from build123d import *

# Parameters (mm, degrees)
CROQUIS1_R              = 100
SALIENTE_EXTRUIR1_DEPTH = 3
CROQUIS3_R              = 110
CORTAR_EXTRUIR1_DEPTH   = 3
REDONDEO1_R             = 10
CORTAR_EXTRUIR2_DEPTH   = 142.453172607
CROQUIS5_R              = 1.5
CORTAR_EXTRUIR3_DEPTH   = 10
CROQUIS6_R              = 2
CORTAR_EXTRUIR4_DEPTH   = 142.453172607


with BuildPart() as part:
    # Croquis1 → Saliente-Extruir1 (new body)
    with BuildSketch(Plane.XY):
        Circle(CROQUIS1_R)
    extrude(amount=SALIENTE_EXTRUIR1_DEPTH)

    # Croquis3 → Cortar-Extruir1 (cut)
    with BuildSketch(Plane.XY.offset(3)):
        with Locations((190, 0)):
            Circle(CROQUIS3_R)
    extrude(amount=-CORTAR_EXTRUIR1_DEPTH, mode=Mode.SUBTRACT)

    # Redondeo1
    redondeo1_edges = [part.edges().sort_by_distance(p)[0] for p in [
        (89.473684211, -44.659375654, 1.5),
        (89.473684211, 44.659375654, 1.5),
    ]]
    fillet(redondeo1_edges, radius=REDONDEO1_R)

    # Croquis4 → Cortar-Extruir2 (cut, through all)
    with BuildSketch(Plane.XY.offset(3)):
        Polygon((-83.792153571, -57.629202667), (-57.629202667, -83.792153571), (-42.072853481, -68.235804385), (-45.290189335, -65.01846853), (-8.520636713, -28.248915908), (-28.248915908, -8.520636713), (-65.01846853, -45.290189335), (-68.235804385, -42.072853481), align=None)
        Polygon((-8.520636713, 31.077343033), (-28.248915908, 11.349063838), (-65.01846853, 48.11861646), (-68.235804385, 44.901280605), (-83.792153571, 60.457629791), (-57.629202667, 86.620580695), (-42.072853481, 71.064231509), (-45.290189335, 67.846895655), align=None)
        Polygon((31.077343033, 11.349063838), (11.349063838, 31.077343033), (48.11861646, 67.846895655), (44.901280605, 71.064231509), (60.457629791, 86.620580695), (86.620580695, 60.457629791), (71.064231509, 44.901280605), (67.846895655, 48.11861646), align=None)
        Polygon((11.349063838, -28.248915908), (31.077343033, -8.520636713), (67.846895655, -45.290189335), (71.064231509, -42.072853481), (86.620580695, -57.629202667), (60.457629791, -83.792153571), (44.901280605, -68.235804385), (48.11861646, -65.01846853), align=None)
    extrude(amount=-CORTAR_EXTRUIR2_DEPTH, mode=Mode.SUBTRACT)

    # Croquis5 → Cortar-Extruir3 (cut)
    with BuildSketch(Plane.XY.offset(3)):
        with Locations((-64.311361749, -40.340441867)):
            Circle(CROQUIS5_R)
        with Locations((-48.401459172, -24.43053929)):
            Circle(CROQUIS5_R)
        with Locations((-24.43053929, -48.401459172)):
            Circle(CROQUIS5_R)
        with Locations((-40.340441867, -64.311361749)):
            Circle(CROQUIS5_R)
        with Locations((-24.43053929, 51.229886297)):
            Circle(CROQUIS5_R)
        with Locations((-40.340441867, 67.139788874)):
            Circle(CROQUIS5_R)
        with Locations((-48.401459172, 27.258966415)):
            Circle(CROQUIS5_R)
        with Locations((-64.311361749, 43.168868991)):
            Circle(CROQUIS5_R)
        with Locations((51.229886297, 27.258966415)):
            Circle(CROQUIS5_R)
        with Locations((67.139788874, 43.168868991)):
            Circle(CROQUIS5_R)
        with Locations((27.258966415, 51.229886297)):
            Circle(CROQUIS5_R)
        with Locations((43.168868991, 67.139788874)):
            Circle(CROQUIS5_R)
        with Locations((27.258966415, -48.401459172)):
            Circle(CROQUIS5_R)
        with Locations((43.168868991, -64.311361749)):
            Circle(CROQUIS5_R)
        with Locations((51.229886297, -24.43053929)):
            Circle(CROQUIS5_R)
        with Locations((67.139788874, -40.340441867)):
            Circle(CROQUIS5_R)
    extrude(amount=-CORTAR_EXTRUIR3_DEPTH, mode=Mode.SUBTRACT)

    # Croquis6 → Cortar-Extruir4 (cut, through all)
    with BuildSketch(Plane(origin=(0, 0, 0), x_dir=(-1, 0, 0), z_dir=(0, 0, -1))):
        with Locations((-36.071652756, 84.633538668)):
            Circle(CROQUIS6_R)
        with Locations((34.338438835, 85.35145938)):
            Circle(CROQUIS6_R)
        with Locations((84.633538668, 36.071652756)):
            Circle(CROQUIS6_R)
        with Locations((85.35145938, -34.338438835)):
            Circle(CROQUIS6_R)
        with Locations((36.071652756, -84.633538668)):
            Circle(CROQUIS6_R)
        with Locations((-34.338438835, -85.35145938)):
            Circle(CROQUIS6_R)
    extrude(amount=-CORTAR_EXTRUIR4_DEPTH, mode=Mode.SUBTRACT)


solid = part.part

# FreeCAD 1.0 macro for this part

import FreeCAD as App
import Part
import Sketcher


def edges_at(feature, points):
    """Names of the edges that pass closest to the given points."""
    edges = feature.Shape.Edges
    near = lambda p: min(range(len(edges)), key=lambda i: edges[i].distToShape(Part.Vertex(*p))[0])
    return sorted({f"Edge{near(p) + 1}" for p in points})

doc = App.newDocument("Part")
body = doc.addObject("PartDesign::Body", "Body")

# Sketch on XY plane
sketch1 = doc.addObject("Sketcher::SketchObject", "Sketch")
body.addObject(sketch1)
sketch1.AttachmentSupport = (doc.XY_Plane, [""])
sketch1.MapMode = "FlatFace"
sketch1.addGeometry(Part.Circle(App.Vector(0, 0, 0), App.Vector(0, 0, 1), 100), False)
sketch1.addConstraint(Sketcher.Constraint("Coincident", 0, 3, -1, 1))
sketch1.addConstraint(Sketcher.Constraint("Diameter", 0, 200.0))
pad1 = doc.addObject("PartDesign::Pad", "Pad")
body.addObject(pad1)
pad1.Profile = sketch1
pad1.Length = 3

# Sketch on XY plane
sketch2 = doc.addObject("Sketcher::SketchObject", "Sketch001")
body.addObject(sketch2)
sketch2.AttachmentSupport = (doc.XY_Plane, [""])
sketch2.MapMode = "FlatFace"
sketch2.AttachmentOffset = App.Placement(App.Vector(0, 0, 3), App.Rotation())
sketch2.addGeometry(Part.Circle(App.Vector(190, 0, 0), App.Vector(0, 0, 1), 110), False)
sketch2.addConstraint(Sketcher.Constraint("PointOnObject", 0, 3, -1))
sketch2.addConstraint(Sketcher.Constraint("Diameter", 0, 220.0))
sketch2.addConstraint(Sketcher.Constraint("DistanceX", -1, 1, 0, 3, 190.0))
pocket1 = doc.addObject("PartDesign::Pocket", "Pocket")
body.addObject(pocket1)
pocket1.Profile = sketch2
pocket1.Length = 3
doc.recompute()

fillet = doc.addObject("PartDesign::Fillet", "Fillet")
body.addObject(fillet)
fillet.Base = (pocket1, edges_at(pocket1, [(89.474, -44.659, 1.5), (89.474, 44.659, 1.5)]))
fillet.Radius = 10

# Sketch on XY plane
sketch3 = doc.addObject("Sketcher::SketchObject", "Sketch002")
body.addObject(sketch3)
sketch3.AttachmentSupport = (doc.XY_Plane, [""])
sketch3.MapMode = "FlatFace"
sketch3.AttachmentOffset = App.Placement(App.Vector(0, 0, 3), App.Rotation())
sketch3.addGeometry(Part.LineSegment(App.Vector(-83.8, -57.6, 0), App.Vector(-57.6, -83.8, 0)), False)
sketch3.addGeometry(Part.LineSegment(App.Vector(-57.6, -83.8, 0), App.Vector(-42.1, -68.2, 0)), False)
sketch3.addGeometry(Part.LineSegment(App.Vector(-42.1, -68.2, 0), App.Vector(-45.3, -65, 0)), False)
sketch3.addGeometry(Part.LineSegment(App.Vector(-45.3, -65, 0), App.Vector(-8.5, -28.2, 0)), False)
sketch3.addGeometry(Part.LineSegment(App.Vector(-8.5, -28.2, 0), App.Vector(-28.2, -8.5, 0)), False)
sketch3.addGeometry(Part.LineSegment(App.Vector(-28.2, -8.5, 0), App.Vector(-65, -45.3, 0)), False)
sketch3.addGeometry(Part.LineSegment(App.Vector(-65, -45.3, 0), App.Vector(-68.2, -42.1, 0)), False)
sketch3.addGeometry(Part.LineSegment(App.Vector(-68.2, -42.1, 0), App.Vector(-83.8, -57.6, 0)), False)
sketch3.addGeometry(Part.LineSegment(App.Vector(-28.2, 11.3, 0), App.Vector(-8.5, 31.1, 0)), False)
sketch3.addGeometry(Part.LineSegment(App.Vector(-8.5, 31.1, 0), App.Vector(-45.3, 67.8, 0)), False)
sketch3.addGeometry(Part.LineSegment(App.Vector(-45.3, 67.8, 0), App.Vector(-42.1, 71.1, 0)), False)
sketch3.addGeometry(Part.LineSegment(App.Vector(-42.1, 71.1, 0), App.Vector(-57.6, 86.6, 0)), False)
sketch3.addGeometry(Part.LineSegment(App.Vector(-57.6, 86.6, 0), App.Vector(-83.8, 60.5, 0)), False)
sketch3.addGeometry(Part.LineSegment(App.Vector(-83.8, 60.5, 0), App.Vector(-68.2, 44.9, 0)), False)
sketch3.addGeometry(Part.LineSegment(App.Vector(-68.2, 44.9, 0), App.Vector(-65, 48.1, 0)), False)
sketch3.addGeometry(Part.LineSegment(App.Vector(-65, 48.1, 0), App.Vector(-28.2, 11.3, 0)), False)
sketch3.addGeometry(Part.LineSegment(App.Vector(11.3, 31.1, 0), App.Vector(31.1, 11.3, 0)), False)
sketch3.addGeometry(Part.LineSegment(App.Vector(31.1, 11.3, 0), App.Vector(67.8, 48.1, 0)), False)
sketch3.addGeometry(Part.LineSegment(App.Vector(67.8, 48.1, 0), App.Vector(71.1, 44.9, 0)), False)
sketch3.addGeometry(Part.LineSegment(App.Vector(71.1, 44.9, 0), App.Vector(86.6, 60.5, 0)), False)
sketch3.addGeometry(Part.LineSegment(App.Vector(86.6, 60.5, 0), App.Vector(60.5, 86.6, 0)), False)
sketch3.addGeometry(Part.LineSegment(App.Vector(60.5, 86.6, 0), App.Vector(44.9, 71.1, 0)), False)
sketch3.addGeometry(Part.LineSegment(App.Vector(44.9, 71.1, 0), App.Vector(48.1, 67.8, 0)), False)
sketch3.addGeometry(Part.LineSegment(App.Vector(48.1, 67.8, 0), App.Vector(11.3, 31.1, 0)), False)
sketch3.addGeometry(Part.LineSegment(App.Vector(31.1, -8.5, 0), App.Vector(11.3, -28.2, 0)), False)
sketch3.addGeometry(Part.LineSegment(App.Vector(11.3, -28.2, 0), App.Vector(48.1, -65, 0)), False)
sketch3.addGeometry(Part.LineSegment(App.Vector(48.1, -65, 0), App.Vector(44.9, -68.2, 0)), False)
sketch3.addGeometry(Part.LineSegment(App.Vector(44.9, -68.2, 0), App.Vector(60.5, -83.8, 0)), False)
sketch3.addGeometry(Part.LineSegment(App.Vector(60.5, -83.8, 0), App.Vector(86.6, -57.6, 0)), False)
sketch3.addGeometry(Part.LineSegment(App.Vector(86.6, -57.6, 0), App.Vector(71.1, -42.1, 0)), False)
sketch3.addGeometry(Part.LineSegment(App.Vector(71.1, -42.1, 0), App.Vector(67.8, -45.3, 0)), False)
sketch3.addGeometry(Part.LineSegment(App.Vector(67.8, -45.3, 0), App.Vector(31.1, -8.5, 0)), False)
sketch3.addConstraint(Sketcher.Constraint("Coincident", 0, 2, 1, 1))
sketch3.addConstraint(Sketcher.Constraint("Coincident", 1, 2, 2, 1))
sketch3.addConstraint(Sketcher.Constraint("Coincident", 2, 2, 3, 1))
sketch3.addConstraint(Sketcher.Constraint("Coincident", 3, 2, 4, 1))
sketch3.addConstraint(Sketcher.Constraint("Coincident", 4, 2, 5, 1))
sketch3.addConstraint(Sketcher.Constraint("Coincident", 5, 2, 6, 1))
sketch3.addConstraint(Sketcher.Constraint("Coincident", 6, 2, 7, 1))
sketch3.addConstraint(Sketcher.Constraint("Coincident", 7, 2, 0, 1))
sketch3.addConstraint(Sketcher.Constraint("Coincident", 8, 2, 9, 1))
sketch3.addConstraint(Sketcher.Constraint("Coincident", 9, 2, 10, 1))
sketch3.addConstraint(Sketcher.Constraint("Coincident", 10, 2, 11, 1))
sketch3.addConstraint(Sketcher.Constraint("Coincident", 11, 2, 12, 1))
sketch3.addConstraint(Sketcher.Constraint("Coincident", 12, 2, 13, 1))
sketch3.addConstraint(Sketcher.Constraint("Coincident", 13, 2, 14, 1))
sketch3.addConstraint(Sketcher.Constraint("Coincident", 14, 2, 15, 1))
sketch3.addConstraint(Sketcher.Constraint("Coincident", 15, 2, 8, 1))
sketch3.addConstraint(Sketcher.Constraint("Coincident", 16, 2, 17, 1))
sketch3.addConstraint(Sketcher.Constraint("Coincident", 17, 2, 18, 1))
sketch3.addConstraint(Sketcher.Constraint("Coincident", 18, 2, 19, 1))
sketch3.addConstraint(Sketcher.Constraint("Coincident", 19, 2, 20, 1))
sketch3.addConstraint(Sketcher.Constraint("Coincident", 20, 2, 21, 1))
sketch3.addConstraint(Sketcher.Constraint("Coincident", 21, 2, 22, 1))
sketch3.addConstraint(Sketcher.Constraint("Coincident", 22, 2, 23, 1))
sketch3.addConstraint(Sketcher.Constraint("Coincident", 23, 2, 16, 1))
sketch3.addConstraint(Sketcher.Constraint("Coincident", 24, 2, 25, 1))
sketch3.addConstraint(Sketcher.Constraint("Coincident", 25, 2, 26, 1))
sketch3.addConstraint(Sketcher.Constraint("Coincident", 26, 2, 27, 1))
sketch3.addConstraint(Sketcher.Constraint("Coincident", 27, 2, 28, 1))
sketch3.addConstraint(Sketcher.Constraint("Coincident", 28, 2, 29, 1))
sketch3.addConstraint(Sketcher.Constraint("Coincident", 29, 2, 30, 1))
sketch3.addConstraint(Sketcher.Constraint("Coincident", 30, 2, 31, 1))
sketch3.addConstraint(Sketcher.Constraint("Coincident", 31, 2, 24, 1))
sketch3.addConstraint(Sketcher.Constraint("Perpendicular", 0, 1))
sketch3.addConstraint(Sketcher.Constraint("Perpendicular", 1, 2))
sketch3.addConstraint(Sketcher.Constraint("Perpendicular", 2, 3))
sketch3.addConstraint(Sketcher.Constraint("Perpendicular", 3, 4))
sketch3.addConstraint(Sketcher.Constraint("Perpendicular", 4, 5))
sketch3.addConstraint(Sketcher.Constraint("Perpendicular", 5, 6))
sketch3.addConstraint(Sketcher.Constraint("Perpendicular", 6, 7))
sketch3.addConstraint(Sketcher.Constraint("Parallel", 7, 8))
sketch3.addConstraint(Sketcher.Constraint("Perpendicular", 8, 9))
sketch3.addConstraint(Sketcher.Constraint("Perpendicular", 9, 10))
sketch3.addConstraint(Sketcher.Constraint("Perpendicular", 10, 11))
sketch3.addConstraint(Sketcher.Constraint("Perpendicular", 11, 12))
sketch3.addConstraint(Sketcher.Constraint("Perpendicular", 12, 13))
sketch3.addConstraint(Sketcher.Constraint("Perpendicular", 13, 14))
sketch3.addConstraint(Sketcher.Constraint("Perpendicular", 14, 15))
sketch3.addConstraint(Sketcher.Constraint("Parallel", 15, 16))
sketch3.addConstraint(Sketcher.Constraint("Perpendicular", 16, 17))
sketch3.addConstraint(Sketcher.Constraint("Perpendicular", 17, 18))
sketch3.addConstraint(Sketcher.Constraint("Perpendicular", 18, 19))
sketch3.addConstraint(Sketcher.Constraint("Perpendicular", 19, 20))
sketch3.addConstraint(Sketcher.Constraint("Perpendicular", 20, 21))
sketch3.addConstraint(Sketcher.Constraint("Perpendicular", 21, 22))
sketch3.addConstraint(Sketcher.Constraint("Perpendicular", 22, 23))
sketch3.addConstraint(Sketcher.Constraint("Parallel", 23, 24))
sketch3.addConstraint(Sketcher.Constraint("Perpendicular", 24, 25))
sketch3.addConstraint(Sketcher.Constraint("Perpendicular", 25, 26))
sketch3.addConstraint(Sketcher.Constraint("Perpendicular", 26, 27))
sketch3.addConstraint(Sketcher.Constraint("Perpendicular", 27, 28))
sketch3.addConstraint(Sketcher.Constraint("Perpendicular", 28, 29))
sketch3.addConstraint(Sketcher.Constraint("Perpendicular", 29, 30))
sketch3.addConstraint(Sketcher.Constraint("Perpendicular", 30, 31))
sketch3.addConstraint(Sketcher.Constraint("Horizontal", 15, 2, 16, 2))
sketch3.addConstraint(Sketcher.Constraint("Horizontal", 14, 2, 17, 2))
sketch3.addConstraint(Sketcher.Constraint("Horizontal", 13, 2, 18, 2))
sketch3.addConstraint(Sketcher.Constraint("Horizontal", 12, 2, 19, 2))
sketch3.addConstraint(Sketcher.Constraint("Horizontal", 11, 2, 20, 2))
sketch3.addConstraint(Sketcher.Constraint("Horizontal", 10, 2, 21, 2))
sketch3.addConstraint(Sketcher.Constraint("Horizontal", 9, 2, 22, 2))
sketch3.addConstraint(Sketcher.Constraint("Horizontal", 3, 2, 24, 2))
sketch3.addConstraint(Sketcher.Constraint("Horizontal", 2, 2, 25, 2))
sketch3.addConstraint(Sketcher.Constraint("Horizontal", 1, 2, 26, 2))
sketch3.addConstraint(Sketcher.Constraint("Horizontal", 0, 2, 27, 2))
sketch3.addConstraint(Sketcher.Constraint("Horizontal", 7, 2, 28, 2))
sketch3.addConstraint(Sketcher.Constraint("Horizontal", 6, 2, 29, 2))
sketch3.addConstraint(Sketcher.Constraint("Horizontal", 5, 2, 30, 2))
sketch3.addConstraint(Sketcher.Constraint("Vertical", 3, 2, 8, 2))
sketch3.addConstraint(Sketcher.Constraint("Vertical", 2, 2, 9, 2))
sketch3.addConstraint(Sketcher.Constraint("Vertical", 1, 2, 10, 2))
sketch3.addConstraint(Sketcher.Constraint("Vertical", 0, 2, 11, 2))
sketch3.addConstraint(Sketcher.Constraint("Vertical", 7, 2, 12, 2))
sketch3.addConstraint(Sketcher.Constraint("Vertical", 6, 2, 13, 2))
sketch3.addConstraint(Sketcher.Constraint("Vertical", 5, 2, 14, 2))
sketch3.addConstraint(Sketcher.Constraint("Vertical", 23, 2, 24, 2))
sketch3.addConstraint(Sketcher.Constraint("Vertical", 22, 2, 25, 2))
sketch3.addConstraint(Sketcher.Constraint("Equal", 3, 5))
sketch3.addConstraint(Sketcher.Constraint("Equal", 2, 6))
sketch3.addConstraint(Sketcher.Constraint("Distance", 0, 37.0))
sketch3.addConstraint(Sketcher.Constraint("Distance", 1, 22.0))
sketch3.addConstraint(Sketcher.Constraint("Distance", 3, 52.0))
sketch3.addConstraint(Sketcher.Constraint("Distance", 4, 27.9))
sketch3.addConstraint(Sketcher.Constraint("DistanceY", 4, 2, 15, 2, 19.869701))
sketch3.addConstraint(Sketcher.Constraint("DistanceX", 8, 2, 23, 2, 19.869701))
sketch3.addConstraint(Sketcher.Constraint("DistanceX", 2, 2, -1, 1, 45.290189))
sketch3.addConstraint(Sketcher.Constraint("DistanceY", 2, 2, -1, 1, 65.018469))
pocket2 = doc.addObject("PartDesign::Pocket", "Pocket001")
body.addObject(pocket2)
pocket2.Profile = sketch3
pocket2.Type = "ThroughAll"

# Sketch on XY plane
sketch4 = doc.addObject("Sketcher::SketchObject", "Sketch003")
body.addObject(sketch4)
sketch4.AttachmentSupport = (doc.XY_Plane, [""])
sketch4.MapMode = "FlatFace"
sketch4.AttachmentOffset = App.Placement(App.Vector(0, 0, 3), App.Rotation())
sketch4.addGeometry(Part.Circle(App.Vector(-64.3, -40.3, 0), App.Vector(0, 0, 1), 1.5), False)
sketch4.addGeometry(Part.Circle(App.Vector(-48.4, -24.4, 0), App.Vector(0, 0, 1), 1.5), False)
sketch4.addGeometry(Part.Circle(App.Vector(-24.4, -48.4, 0), App.Vector(0, 0, 1), 1.5), False)
sketch4.addGeometry(Part.Circle(App.Vector(-40.3, -64.3, 0), App.Vector(0, 0, 1), 1.5), False)
sketch4.addGeometry(Part.Circle(App.Vector(-24.4, 51.2, 0), App.Vector(0, 0, 1), 1.5), False)
sketch4.addGeometry(Part.Circle(App.Vector(-40.3, 67.1, 0), App.Vector(0, 0, 1), 1.5), False)
sketch4.addGeometry(Part.Circle(App.Vector(-48.4, 27.3, 0), App.Vector(0, 0, 1), 1.5), False)
sketch4.addGeometry(Part.Circle(App.Vector(-64.3, 43.2, 0), App.Vector(0, 0, 1), 1.5), False)
sketch4.addGeometry(Part.Circle(App.Vector(51.2, 27.3, 0), App.Vector(0, 0, 1), 1.5), False)
sketch4.addGeometry(Part.Circle(App.Vector(67.1, 43.2, 0), App.Vector(0, 0, 1), 1.5), False)
sketch4.addGeometry(Part.Circle(App.Vector(27.3, 51.2, 0), App.Vector(0, 0, 1), 1.5), False)
sketch4.addGeometry(Part.Circle(App.Vector(43.2, 67.1, 0), App.Vector(0, 0, 1), 1.5), False)
sketch4.addGeometry(Part.Circle(App.Vector(27.3, -48.4, 0), App.Vector(0, 0, 1), 1.5), False)
sketch4.addGeometry(Part.Circle(App.Vector(43.2, -64.3, 0), App.Vector(0, 0, 1), 1.5), False)
sketch4.addGeometry(Part.Circle(App.Vector(51.2, -24.4, 0), App.Vector(0, 0, 1), 1.5), False)
sketch4.addGeometry(Part.Circle(App.Vector(67.1, -40.3, 0), App.Vector(0, 0, 1), 1.5), False)
sketch4.addConstraint(Sketcher.Constraint("Equal", 0, 1))
sketch4.addConstraint(Sketcher.Constraint("Equal", 1, 2))
sketch4.addConstraint(Sketcher.Constraint("Equal", 2, 3))
sketch4.addConstraint(Sketcher.Constraint("Equal", 3, 4))
sketch4.addConstraint(Sketcher.Constraint("Equal", 4, 5))
sketch4.addConstraint(Sketcher.Constraint("Equal", 5, 6))
sketch4.addConstraint(Sketcher.Constraint("Equal", 6, 7))
sketch4.addConstraint(Sketcher.Constraint("Equal", 7, 8))
sketch4.addConstraint(Sketcher.Constraint("Equal", 8, 9))
sketch4.addConstraint(Sketcher.Constraint("Equal", 9, 10))
sketch4.addConstraint(Sketcher.Constraint("Equal", 10, 11))
sketch4.addConstraint(Sketcher.Constraint("Equal", 11, 12))
sketch4.addConstraint(Sketcher.Constraint("Equal", 12, 13))
sketch4.addConstraint(Sketcher.Constraint("Equal", 13, 14))
sketch4.addConstraint(Sketcher.Constraint("Equal", 14, 15))
sketch4.addConstraint(Sketcher.Constraint("Horizontal", 6, 3, 8, 3))
sketch4.addConstraint(Sketcher.Constraint("Horizontal", 7, 3, 9, 3))
sketch4.addConstraint(Sketcher.Constraint("Horizontal", 4, 3, 10, 3))
sketch4.addConstraint(Sketcher.Constraint("Horizontal", 5, 3, 11, 3))
sketch4.addConstraint(Sketcher.Constraint("Horizontal", 2, 3, 12, 3))
sketch4.addConstraint(Sketcher.Constraint("Horizontal", 3, 3, 13, 3))
sketch4.addConstraint(Sketcher.Constraint("Horizontal", 1, 3, 14, 3))
sketch4.addConstraint(Sketcher.Constraint("Horizontal", 0, 3, 15, 3))
sketch4.addConstraint(Sketcher.Constraint("Vertical", 2, 3, 4, 3))
sketch4.addConstraint(Sketcher.Constraint("Vertical", 3, 3, 5, 3))
sketch4.addConstraint(Sketcher.Constraint("Vertical", 1, 3, 6, 3))
sketch4.addConstraint(Sketcher.Constraint("Vertical", 0, 3, 7, 3))
sketch4.addConstraint(Sketcher.Constraint("Vertical", 10, 3, 12, 3))
sketch4.addConstraint(Sketcher.Constraint("Vertical", 11, 3, 13, 3))
sketch4.addConstraint(Sketcher.Constraint("Vertical", 8, 3, 14, 3))
sketch4.addConstraint(Sketcher.Constraint("Vertical", 9, 3, 15, 3))
sketch4.addConstraint(Sketcher.Constraint("Diameter", 0, 3.0))
sketch4.addConstraint(Sketcher.Constraint("DistanceX", 0, 3, -1, 1, 64.311362))
sketch4.addConstraint(Sketcher.Constraint("DistanceY", 0, 3, -1, 1, 40.340442))
sketch4.addConstraint(Sketcher.Constraint("DistanceX", 1, 3, -1, 1, 48.401459))
sketch4.addConstraint(Sketcher.Constraint("DistanceY", 1, 3, -1, 1, 24.430539))
sketch4.addConstraint(Sketcher.Constraint("DistanceX", 2, 3, -1, 1, 24.430539))
sketch4.addConstraint(Sketcher.Constraint("DistanceY", 2, 3, -1, 1, 48.401459))
sketch4.addConstraint(Sketcher.Constraint("DistanceX", 3, 3, -1, 1, 40.340442))
sketch4.addConstraint(Sketcher.Constraint("DistanceY", 3, 3, -1, 1, 64.311362))
sketch4.addConstraint(Sketcher.Constraint("DistanceY", -1, 1, 5, 3, 67.139789))
sketch4.addConstraint(Sketcher.Constraint("DistanceY", -1, 1, 7, 3, 43.168869))
sketch4.addConstraint(Sketcher.Constraint("DistanceX", -1, 1, 9, 3, 67.139789))
sketch4.addConstraint(Sketcher.Constraint("DistanceX", -1, 1, 11, 3, 43.168869))
sketch4.addConstraint(Sketcher.Constraint("DistanceY", 0, 3, 4, 3, 91.570328))
sketch4.addConstraint(Sketcher.Constraint("DistanceY", 6, 3, 4, 3, 23.97092))
sketch4.addConstraint(Sketcher.Constraint("DistanceX", 5, 3, 8, 3, 91.570328))
sketch4.addConstraint(Sketcher.Constraint("DistanceX", 10, 3, 8, 3, 23.97092))
pocket3 = doc.addObject("PartDesign::Pocket", "Pocket002")
body.addObject(pocket3)
pocket3.Profile = sketch4
pocket3.Length = 10

# Sketch on XY plane
sketch5 = doc.addObject("Sketcher::SketchObject", "Sketch004")
body.addObject(sketch5)
sketch5.AttachmentSupport = (doc.XY_Plane, [""])
sketch5.MapMode = "FlatFace"
sketch5.addGeometry(Part.Circle(App.Vector(36.1, 84.6, 0), App.Vector(0, 0, 1), 2), False)
sketch5.addGeometry(Part.Circle(App.Vector(-34.3, 85.4, 0), App.Vector(0, 0, 1), 2), False)
sketch5.addGeometry(Part.Circle(App.Vector(-84.6, 36.1, 0), App.Vector(0, 0, 1), 2), False)
sketch5.addGeometry(Part.Circle(App.Vector(-85.4, -34.3, 0), App.Vector(0, 0, 1), 2), False)
sketch5.addGeometry(Part.Circle(App.Vector(-36.1, -84.6, 0), App.Vector(0, 0, 1), 2), False)
sketch5.addGeometry(Part.Circle(App.Vector(34.3, -85.4, 0), App.Vector(0, 0, 1), 2), False)
sketch5.addConstraint(Sketcher.Constraint("Equal", 0, 1))
sketch5.addConstraint(Sketcher.Constraint("Equal", 1, 2))
sketch5.addConstraint(Sketcher.Constraint("Equal", 2, 3))
sketch5.addConstraint(Sketcher.Constraint("Equal", 3, 4))
sketch5.addConstraint(Sketcher.Constraint("Equal", 4, 5))
sketch5.addConstraint(Sketcher.Constraint("Symmetric", 0, 3, 4, 3, -1, 1))
sketch5.addConstraint(Sketcher.Constraint("Symmetric", 1, 3, 5, 3, -1, 1))
sketch5.addConstraint(Sketcher.Constraint("Diameter", 0, 4.0))
sketch5.addConstraint(Sketcher.Constraint("DistanceY", 4, 3, 1, 3, 169.984998))
sketch5.addConstraint(Sketcher.Constraint("DistanceX", 2, 3, 1, 3, 50.2951))
sketch5.addConstraint(Sketcher.Constraint("DistanceY", 3, 3, 1, 3, 119.689898))
sketch5.addConstraint(Sketcher.Constraint("DistanceX", 3, 3, 5, 3, 119.689898))
sketch5.addConstraint(Sketcher.Constraint("DistanceY", -1, 1, 0, 3, 84.633539))
sketch5.addConstraint(Sketcher.Constraint("DistanceX", 1, 3, -1, 1, 34.338439))
sketch5.addConstraint(Sketcher.Constraint("DistanceX", 1, 3, 0, 3, 70.410092))
sketch5.addConstraint(Sketcher.Constraint("DistanceY", 3, 3, 2, 3, 70.410092))
pocket4 = doc.addObject("PartDesign::Pocket", "Pocket003")
body.addObject(pocket4)
pocket4.Profile = sketch5
pocket4.Type = "ThroughAll"
pocket4.Reversed = True

doc.recompute()
